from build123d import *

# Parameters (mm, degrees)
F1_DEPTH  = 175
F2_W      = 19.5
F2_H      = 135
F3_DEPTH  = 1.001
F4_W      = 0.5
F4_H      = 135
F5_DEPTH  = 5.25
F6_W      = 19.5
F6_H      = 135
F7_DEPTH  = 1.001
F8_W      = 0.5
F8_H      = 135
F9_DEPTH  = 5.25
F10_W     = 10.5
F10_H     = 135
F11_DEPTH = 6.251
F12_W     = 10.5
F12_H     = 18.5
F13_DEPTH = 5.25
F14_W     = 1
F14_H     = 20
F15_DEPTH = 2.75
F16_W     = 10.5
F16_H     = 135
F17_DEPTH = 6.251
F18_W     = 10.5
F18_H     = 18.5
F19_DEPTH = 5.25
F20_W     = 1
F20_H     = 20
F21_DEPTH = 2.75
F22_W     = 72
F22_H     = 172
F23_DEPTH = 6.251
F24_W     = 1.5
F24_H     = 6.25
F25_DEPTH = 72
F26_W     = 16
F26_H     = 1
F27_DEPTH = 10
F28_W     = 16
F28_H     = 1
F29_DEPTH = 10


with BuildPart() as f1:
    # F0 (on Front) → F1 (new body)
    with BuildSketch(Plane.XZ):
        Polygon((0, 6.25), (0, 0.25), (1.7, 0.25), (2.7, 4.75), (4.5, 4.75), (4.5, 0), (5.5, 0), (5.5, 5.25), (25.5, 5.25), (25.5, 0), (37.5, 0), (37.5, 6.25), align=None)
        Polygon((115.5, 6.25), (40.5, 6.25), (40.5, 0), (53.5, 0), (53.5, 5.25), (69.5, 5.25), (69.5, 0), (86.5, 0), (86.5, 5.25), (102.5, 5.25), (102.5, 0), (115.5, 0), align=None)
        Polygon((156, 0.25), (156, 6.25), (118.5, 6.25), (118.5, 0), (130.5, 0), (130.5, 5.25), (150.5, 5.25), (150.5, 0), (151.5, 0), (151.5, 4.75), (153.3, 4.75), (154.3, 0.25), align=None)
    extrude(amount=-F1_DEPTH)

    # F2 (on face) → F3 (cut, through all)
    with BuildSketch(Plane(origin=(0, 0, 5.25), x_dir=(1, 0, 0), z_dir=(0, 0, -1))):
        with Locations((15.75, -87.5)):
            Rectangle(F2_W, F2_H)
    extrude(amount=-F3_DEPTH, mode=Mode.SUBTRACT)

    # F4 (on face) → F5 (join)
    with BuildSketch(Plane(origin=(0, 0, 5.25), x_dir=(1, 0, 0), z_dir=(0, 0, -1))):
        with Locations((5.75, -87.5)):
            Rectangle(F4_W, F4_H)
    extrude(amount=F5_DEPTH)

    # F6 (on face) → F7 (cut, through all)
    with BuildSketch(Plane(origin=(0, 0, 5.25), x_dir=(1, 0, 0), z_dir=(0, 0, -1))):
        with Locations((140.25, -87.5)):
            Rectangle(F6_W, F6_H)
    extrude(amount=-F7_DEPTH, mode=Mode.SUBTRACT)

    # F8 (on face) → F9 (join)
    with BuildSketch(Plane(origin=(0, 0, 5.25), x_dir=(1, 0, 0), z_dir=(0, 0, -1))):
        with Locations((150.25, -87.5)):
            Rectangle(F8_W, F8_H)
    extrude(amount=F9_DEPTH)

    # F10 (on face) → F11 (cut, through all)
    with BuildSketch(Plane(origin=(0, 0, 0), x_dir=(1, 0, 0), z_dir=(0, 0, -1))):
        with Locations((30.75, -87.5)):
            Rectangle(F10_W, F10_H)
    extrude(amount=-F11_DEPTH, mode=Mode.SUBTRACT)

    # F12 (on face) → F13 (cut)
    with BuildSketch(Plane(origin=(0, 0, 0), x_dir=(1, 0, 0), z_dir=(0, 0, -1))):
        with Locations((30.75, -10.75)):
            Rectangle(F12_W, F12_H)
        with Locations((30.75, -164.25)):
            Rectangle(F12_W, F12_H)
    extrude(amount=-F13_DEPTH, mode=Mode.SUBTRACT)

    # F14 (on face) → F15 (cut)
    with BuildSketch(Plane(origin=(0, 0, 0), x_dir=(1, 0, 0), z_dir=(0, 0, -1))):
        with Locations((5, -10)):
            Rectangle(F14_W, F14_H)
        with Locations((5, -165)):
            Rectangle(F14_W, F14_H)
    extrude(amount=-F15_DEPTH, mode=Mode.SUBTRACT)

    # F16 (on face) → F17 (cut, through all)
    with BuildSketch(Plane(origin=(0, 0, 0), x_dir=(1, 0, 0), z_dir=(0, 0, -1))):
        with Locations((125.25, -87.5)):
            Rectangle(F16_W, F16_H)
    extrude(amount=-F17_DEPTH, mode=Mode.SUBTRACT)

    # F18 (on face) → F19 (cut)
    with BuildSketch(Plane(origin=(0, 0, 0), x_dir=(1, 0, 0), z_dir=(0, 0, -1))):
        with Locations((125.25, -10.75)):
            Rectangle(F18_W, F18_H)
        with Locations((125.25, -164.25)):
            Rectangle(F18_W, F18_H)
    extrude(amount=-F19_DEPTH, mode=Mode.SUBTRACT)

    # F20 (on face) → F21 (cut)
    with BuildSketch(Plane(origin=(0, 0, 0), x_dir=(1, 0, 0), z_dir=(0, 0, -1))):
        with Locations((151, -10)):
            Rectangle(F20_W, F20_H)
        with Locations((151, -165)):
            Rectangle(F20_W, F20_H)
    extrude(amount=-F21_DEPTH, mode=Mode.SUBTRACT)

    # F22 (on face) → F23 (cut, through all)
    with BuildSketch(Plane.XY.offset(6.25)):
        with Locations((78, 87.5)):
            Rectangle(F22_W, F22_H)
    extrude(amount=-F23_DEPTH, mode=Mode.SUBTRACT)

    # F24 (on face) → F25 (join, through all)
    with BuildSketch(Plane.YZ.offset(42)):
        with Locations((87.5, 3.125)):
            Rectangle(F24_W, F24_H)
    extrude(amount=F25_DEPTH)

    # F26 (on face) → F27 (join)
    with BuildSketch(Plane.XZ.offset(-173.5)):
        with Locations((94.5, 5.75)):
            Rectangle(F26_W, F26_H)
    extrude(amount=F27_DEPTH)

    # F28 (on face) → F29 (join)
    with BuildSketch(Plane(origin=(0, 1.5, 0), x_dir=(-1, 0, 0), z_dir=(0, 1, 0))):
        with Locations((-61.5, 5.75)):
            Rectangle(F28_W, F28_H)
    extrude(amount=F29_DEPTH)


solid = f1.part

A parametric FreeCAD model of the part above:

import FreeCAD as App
import Part
import Sketcher

V = App.Vector
Q = App.Units.Quantity

doc = App.newDocument("Part")
body = doc.addObject("PartDesign::Body", "Body")
body.AllowCompound = True

sketch1 = doc.addObject("Sketcher::SketchObject", "Sketch")
body.addObject(sketch1)
sketch1.AttachmentSupport = (doc.XZ_Plane, [""])
sketch1.MapMode = "FlatFace"
sketch1.addGeometry(Part.LineSegment(V(0, 6.25, 0), V(0, 0.25, 0)), False)
sketch1.addGeometry(Part.LineSegment(V(0, 0.25, 0), V(1.7, 0.25, 0)), False)
sketch1.addGeometry(Part.LineSegment(V(1.7, 0.25, 0), V(2.7, 4.75, 0)), False)
sketch1.addGeometry(Part.LineSegment(V(2.7, 4.75, 0), V(4.5, 4.75, 0)), False)
sketch1.addGeometry(Part.LineSegment(V(4.5, 4.75, 0), V(4.5, 0, 0)), False)
sketch1.addGeometry(Part.LineSegment(V(4.5, 0, 0), V(5.5, 0, 0)), False)
sketch1.addGeometry(Part.LineSegment(V(5.5, 0, 0), V(5.5, 5.25, 0)), False)
sketch1.addGeometry(Part.LineSegment(V(5.5, 5.25, 0), V(25.5, 5.25, 0)), False)
sketch1.addGeometry(Part.LineSegment(V(25.5, 5.25, 0), V(25.5, 0, 0)), False)
sketch1.addGeometry(Part.LineSegment(V(25.5, 0, 0), V(37.5, 0, 0)), False)
sketch1.addGeometry(Part.LineSegment(V(37.5, 0, 0), V(37.5, 6.25, 0)), False)
sketch1.addGeometry(Part.LineSegment(V(37.5, 6.25, 0), V(0, 6.25, 0)), False)
sketch1.addGeometry(Part.LineSegment(V(115.5, 6.25, 0), V(40.5, 6.25, 0)), False)
sketch1.addGeometry(Part.LineSegment(V(40.5, 6.25, 0), V(40.5, 0, 0)), False)
sketch1.addGeometry(Part.LineSegment(V(40.5, 0, 0), V(53.5, 0, 0)), False)
sketch1.addGeometry(Part.LineSegment(V(53.5, 0, 0), V(53.5, 5.25, 0)), False)
sketch1.addGeometry(Part.LineSegment(V(53.5, 5.25, 0), V(69.5, 5.25, 0)), False)
sketch1.addGeometry(Part.LineSegment(V(69.5, 5.25, 0), V(69.5, 0, 0)), False)
sketch1.addGeometry(Part.LineSegment(V(69.5, 0, 0), V(86.5, 0, 0)), False)
sketch1.addGeometry(Part.LineSegment(V(86.5, 0, 0), V(86.5, 5.25, 0)), False)
sketch1.addGeometry(Part.LineSegment(V(86.5, 5.25, 0), V(102.5, 5.25, 0)), False)
sketch1.addGeometry(Part.LineSegment(V(102.5, 5.25, 0), V(102.5, 0, 0)), False)
sketch1.addGeometry(Part.LineSegment(V(102.5, 0, 0), V(115.5, 0, 0)), False)
sketch1.addGeometry(Part.LineSegment(V(115.5, 0, 0), V(115.5, 6.25, 0)), False)
sketch1.addGeometry(Part.LineSegment(V(156, 0.25, 0), V(156, 6.25, 0)), False)
sketch1.addGeometry(Part.LineSegment(V(156, 6.25, 0), V(118.5, 6.25, 0)), False)
sketch1.addGeometry(Part.LineSegment(V(118.5, 6.25, 0), V(118.5, 0, 0)), False)
sketch1.addGeometry(Part.LineSegment(V(118.5, 0, 0), V(130.5, 0, 0)), False)
sketch1.addGeometry(Part.LineSegment(V(130.5, 0, 0), V(130.5, 5.25, 0)), False)
sketch1.addGeometry(Part.LineSegment(V(130.5, 5.25, 0), V(150.5, 5.25, 0)), False)
sketch1.addGeometry(Part.LineSegment(V(150.5, 5.25, 0), V(150.5, 0, 0)), False)
sketch1.addGeometry(Part.LineSegment(V(150.5, 0, 0), V(151.5, 0, 0)), False)
sketch1.addGeometry(Part.LineSegment(V(151.5, 0, 0), V(151.5, 4.75, 0)), False)
sketch1.addGeometry(Part.LineSegment(V(151.5, 4.75, 0), V(153.3, 4.75, 0)), False)
sketch1.addGeometry(Part.LineSegment(V(153.3, 4.75, 0), V(154.3, 0.25, 0)), False)
sketch1.addGeometry(Part.LineSegment(V(154.3, 0.25, 0), V(156, 0.25, 0)), False)
sketch1.addConstraint(Sketcher.Constraint("Coincident", 0, 2, 1, 1))
sketch1.addConstraint(Sketcher.Constraint("Coincident", 1, 2, 2, 1))
sketch1.addConstraint(Sketcher.Constraint("Coincident", 2, 2, 3, 1))
sketch1.addConstraint(Sketcher.Constraint("Coincident", 3, 2, 4, 1))
sketch1.addConstraint(Sketcher.Constraint("Coincident", 4, 2, 5, 1))
sketch1.addConstraint(Sketcher.Constraint("Coincident", 5, 2, 6, 1))
sketch1.addConstraint(Sketcher.Constraint("Coincident", 6, 2, 7, 1))
sketch1.addConstraint(Sketcher.Constraint("Coincident", 7, 2, 8, 1))
sketch1.addConstraint(Sketcher.Constraint("Coincident", 8, 2, 9, 1))
sketch1.addConstraint(Sketcher.Constraint("Coincident", 9, 2, 10, 1))
sketch1.addConstraint(Sketcher.Constraint("Coincident", 10, 2, 11, 1))
sketch1.addConstraint(Sketcher.Constraint("Coincident", 11, 2, 0, 1))
sketch1.addConstraint(Sketcher.Constraint("Coincident", 12, 2, 13, 1))
sketch1.addConstraint(Sketcher.Constraint("Coincident", 13, 2, 14, 1))
sketch1.addConstraint(Sketcher.Constraint("Coincident", 14, 2, 15, 1))
sketch1.addConstraint(Sketcher.Constraint("Coincident", 15, 2, 16, 1))
sketch1.addConstraint(Sketcher.Constraint("Coincident", 16, 2, 17, 1))
sketch1.addConstraint(Sketcher.Constraint("Coincident", 17, 2, 18, 1))
sketch1.addConstraint(Sketcher.Constraint("Coincident", 18, 2, 19, 1))
sketch1.addConstraint(Sketcher.Constraint("Coincident", 19, 2, 20, 1))
sketch1.addConstraint(Sketcher.Constraint("Coincident", 20, 2, 21, 1))
sketch1.addConstraint(Sketcher.Constraint("Coincident", 21, 2, 22, 1))
sketch1.addConstraint(Sketcher.Constraint("Coincident", 22, 2, 23, 1))
sketch1.addConstraint(Sketcher.Constraint("Coincident", 23, 2, 12, 1))
sketch1.addConstraint(Sketcher.Constraint("Coincident", 24, 2, 25, 1))
sketch1.addConstraint(Sketcher.Constraint("Coincident", 25, 2, 26, 1))
sketch1.addConstraint(Sketcher.Constraint("Coincident", 26, 2, 27, 1))
sketch1.addConstraint(Sketcher.Constraint("Coincident", 27, 2, 28, 1))
sketch1.addConstraint(Sketcher.Constraint("Coincident", 28, 2, 29, 1))
sketch1.addConstraint(Sketcher.Constraint("Coincident", 29, 2, 30, 1))
sketch1.addConstraint(Sketcher.Constraint("Coincident", 30, 2, 31, 1))
sketch1.addConstraint(Sketcher.Constraint("Coincident", 31, 2, 32, 1))
sketch1.addConstraint(Sketcher.Constraint("Coincident", 32, 2, 33, 1))
sketch1.addConstraint(Sketcher.Constraint("Coincident", 33, 2, 34, 1))
sketch1.addConstraint(Sketcher.Constraint("Coincident", 34, 2, 35, 1))
sketch1.addConstraint(Sketcher.Constraint("Coincident", 35, 2, 24, 1))
sketch1.addConstraint(Sketcher.Constraint("Vertical", 0))
sketch1.addConstraint(Sketcher.Constraint("Horizontal", 1))
sketch1.addConstraint(Sketcher.Constraint("Horizontal", 3))
sketch1.addConstraint(Sketcher.Constraint("Vertical", 4))
sketch1.addConstraint(Sketcher.Constraint("Horizontal", 5))
sketch1.addConstraint(Sketcher.Constraint("Vertical", 6))
sketch1.addConstraint(Sketcher.Constraint("Horizontal", 7))
sketch1.addConstraint(Sketcher.Constraint("Vertical", 8))
sketch1.addConstraint(Sketcher.Constraint("Horizontal", 9))
sketch1.addConstraint(Sketcher.Constraint("Vertical", 10))
sketch1.addConstraint(Sketcher.Constraint("Horizontal", 11))
sketch1.addConstraint(Sketcher.Constraint("Horizontal", 12))
sketch1.addConstraint(Sketcher.Constraint("Vertical", 13))
sketch1.addConstraint(Sketcher.Constraint("Horizontal", 14))
sketch1.addConstraint(Sketcher.Constraint("Vertical", 15))
sketch1.addConstraint(Sketcher.Constraint("Horizontal", 16))
sketch1.addConstraint(Sketcher.Constraint("Vertical", 17))
sketch1.addConstraint(Sketcher.Constraint("Horizontal", 18))
sketch1.addConstraint(Sketcher.Constraint("Vertical", 19))
sketch1.addConstraint(Sketcher.Constraint("Horizontal", 20))
sketch1.addConstraint(Sketcher.Constraint("Vertical", 21))
sketch1.addConstraint(Sketcher.Constraint("Horizontal", 22))
sketch1.addConstraint(Sketcher.Constraint("Vertical", 23))
sketch1.addConstraint(Sketcher.Constraint("Vertical", 24))
sketch1.addConstraint(Sketcher.Constraint("Horizontal", 25))
sketch1.addConstraint(Sketcher.Constraint("Vertical", 26))
sketch1.addConstraint(Sketcher.Constraint("Horizontal", 27))
sketch1.addConstraint(Sketcher.Constraint("Vertical", 28))
sketch1.addConstraint(Sketcher.Constraint("Horizontal", 29))
sketch1.addConstraint(Sketcher.Constraint("Vertical", 30))
sketch1.addConstraint(Sketcher.Constraint("Horizontal", 31))
sketch1.addConstraint(Sketcher.Constraint("Vertical", 32))
sketch1.addConstraint(Sketcher.Constraint("Horizontal", 33))
sketch1.addConstraint(Sketcher.Constraint("Horizontal", 35))
sketch1.addConstraint(Sketcher.Constraint("PointOnObject", 0, 2, -2))
sketch1.addConstraint(Sketcher.Constraint("PointOnObject", 4, 2, -1))
sketch1.addConstraint(Sketcher.Constraint("PointOnObject", 8, 2, -1))
sketch1.addConstraint(Sketcher.Constraint("PointOnObject", 13, 2, -1))
sketch1.addConstraint(Sketcher.Constraint("PointOnObject", 17, 2, -1))
sketch1.addConstraint(Sketcher.Constraint("PointOnObject", 21, 2, -1))
sketch1.addConstraint(Sketcher.Constraint("PointOnObject", 26, 2, -1))
sketch1.addConstraint(Sketcher.Constraint("PointOnObject", 30, 2, -1))
sketch1.addConstraint(Sketcher.Constraint("Horizontal", 11, 2, 12, 2))
sketch1.addConstraint(Sketcher.Constraint("Horizontal", 7, 2, 15, 2))
sketch1.addConstraint(Sketcher.Constraint("Horizontal", 16, 2, 19, 2))
sketch1.addConstraint(Sketcher.Constraint("Horizontal", 23, 2, 24, 2))
sketch1.addConstraint(Sketcher.Constraint("Horizontal", 20, 2, 28, 2))
sketch1.addConstraint(Sketcher.Constraint("Horizontal", 3, 2, 32, 2))
sketch1.addConstraint(Sketcher.Constraint("Horizontal", 1, 2, 34, 2))
sketch1.addConstraint(Sketcher.Constraint("Equal", 16, 20))
sketch1.addConstraint(Sketcher.Constraint("Equal", 14, 22))
sketch1.addConstraint(Sketcher.Constraint("Equal", 11, 25))
sketch1.addConstraint(Sketcher.Constraint("Equal", 9, 27))
sketch1.addConstraint(Sketcher.Constraint("Equal", 7, 29))
sketch1.addConstraint(Sketcher.Constraint("Equal", 5, 31))
sketch1.addConstraint(Sketcher.Constraint("Equal", 3, 33))
sketch1.addConstraint(Sketcher.Constraint("Equal", 1, 35))
sketch1.addConstraint(Sketcher.Constraint("DistanceX", 5, 1, 5, 2, Q("1 mm")))
sketch1.addConstraint(Sketcher.Constraint("DistanceX", 7, 1, 7, 2, Q("20 mm")))
sketch1.addConstraint(Sketcher.Constraint("DistanceX", 9, 1, 9, 2, Q("12 mm")))
sketch1.addConstraint(Sketcher.Constraint("DistanceX", 12, 2, 12, 1, Q("75 mm")))
sketch1.addConstraint(Sketcher.Constraint("DistanceX", 14, 1, 14, 2, Q("13 mm")))
sketch1.addConstraint(Sketcher.Constraint("DistanceX", 16, 1, 16, 2, Q("16 mm")))
sketch1.addConstraint(Sketcher.Constraint("DistanceY", 0, 2, 0, 1, Q("6 mm")))
sketch1.addConstraint(Sketcher.Constraint("DistanceX", 1, 1, 1, 2, Q("1.7 mm")))
sketch1.addConstraint(Sketcher.Constraint("DistanceX", 3, 1, 3, 2, Q("1.8 mm")))
sketch1.addConstraint(Sketcher.Constraint("DistanceX", 11, 2, 11, 1, Q("37.5 mm")))
sketch1.addConstraint(Sketcher.Constraint("DistanceX", -1, 1, 24, 2, Q("156 mm")))
sketch1.addConstraint(Sketcher.Constraint("DistanceY", 1, 2, 6, 2, Q("5 mm")))
sketch1.addConstraint(Sketcher.Constraint("DistanceX", 10, 2, 12, 2, Q("3 mm")))
sketch1.addConstraint(Sketcher.Constraint("DistanceY", 4, 2, 4, 1, Q("4.75 mm")))
sketch1.addConstraint(Sketcher.Constraint("DistanceY", 6, 1, 6, 2, Q("5.25 mm")))
pad1 = doc.addObject("PartDesign::Pad", "Pad")
body.addObject(pad1)
pad1.Profile = sketch1
pad1.Length = 175
pad1.Reversed = True

sketch2 = doc.addObject("Sketcher::SketchObject", "Sketch001")
body.addObject(sketch2)
sketch2.AttachmentSupport = (doc.XY_Plane, [""])
sketch2.MapMode = "FlatFace"
sketch2.AttachmentOffset = App.Placement(V(0, 0, 5.25), App.Rotation())
sketch2.addGeometry(Part.LineSegment(V(6, 20, 0), V(6, 155, 0)), False)
sketch2.addGeometry(Part.LineSegment(V(6, 155, 0), V(25.5, 155, 0)), False)
sketch2.addGeometry(Part.LineSegment(V(25.5, 155, 0), V(25.5, 20, 0)), False)
sketch2.addGeometry(Part.LineSegment(V(25.5, 20, 0), V(6, 20, 0)), False)
sketch2.addConstraint(Sketcher.Constraint("Coincident", 0, 2, 1, 1))
sketch2.addConstraint(Sketcher.Constraint("Coincident", 1, 2, 2, 1))
sketch2.addConstraint(Sketcher.Constraint("Coincident", 2, 2, 3, 1))
sketch2.addConstraint(Sketcher.Constraint("Coincident", 3, 2, 0, 1))
sketch2.addConstraint(Sketcher.Constraint("Vertical", 0))
sketch2.addConstraint(Sketcher.Constraint("Horizontal", 1))
sketch2.addConstraint(Sketcher.Constraint("Vertical", 2))
sketch2.addConstraint(Sketcher.Constraint("Horizontal", 3))
sketch2.addConstraint(Sketcher.Constraint("DistanceY", 0, 1, 0, 2, Q("135 mm")))
sketch2.addConstraint(Sketcher.Constraint("DistanceX", 1, 1, 1, 2, Q("19.5 mm")))
sketch2.addConstraint(Sketcher.Constraint("DistanceX", -1, 1, 0, 2, Q("6 mm")))
sketch2.addConstraint(Sketcher.Constraint("DistanceY", -1, 1, 0, 2, Q("155 mm")))
pocket1 = doc.addObject("PartDesign::Pocket", "Pocket")
body.addObject(pocket1)
pocket1.Profile = sketch2
pocket1.Type = "ThroughAll"
pocket1.Reversed = True

sketch3 = doc.addObject("Sketcher::SketchObject", "Sketch002")
body.addObject(sketch3)
sketch3.AttachmentSupport = (doc.XY_Plane, [""])
sketch3.MapMode = "FlatFace"
sketch3.AttachmentOffset = App.Placement(V(0, 0, 5.25), App.Rotation())
sketch3.addGeometry(Part.LineSegment(V(5.5, 20, 0), V(5.5, 155, 0)), False)
sketch3.addGeometry(Part.LineSegment(V(5.5, 155, 0), V(6, 155, 0)), False)
sketch3.addGeometry(Part.LineSegment(V(6, 155, 0), V(6, 20, 0)), False)
sketch3.addGeometry(Part.LineSegment(V(6, 20, 0), V(5.5, 20, 0)), False)
sketch3.addConstraint(Sketcher.Constraint("Coincident", 0, 2, 1, 1))
sketch3.addConstraint(Sketcher.Constraint("Coincident", 1, 2, 2, 1))
sketch3.addConstraint(Sketcher.Constraint("Coincident", 2, 2, 3, 1))
sketch3.addConstraint(Sketcher.Constraint("Coincident", 3, 2, 0, 1))
sketch3.addConstraint(Sketcher.Constraint("Vertical", 0))
sketch3.addConstraint(Sketcher.Constraint("Horizontal", 1))
sketch3.addConstraint(Sketcher.Constraint("Vertical", 2))
sketch3.addConstraint(Sketcher.Constraint("Horizontal", 3))
sketch3.addConstraint(Sketcher.Constraint("DistanceY", 0, 1, 0, 2, Q("135 mm")))
sketch3.addConstraint(Sketcher.Constraint("DistanceX", 1, 1, 1, 2, Q("0.5 mm")))
sketch3.addConstraint(Sketcher.Constraint("DistanceY", -1, 1, 0, 2, Q("155 mm")))
sketch3.addConstraint(Sketcher.Constraint("DistanceX", -1, 1, 1, 2, Q("6 mm")))
pad2 = doc.addObject("PartDesign::Pad", "Pad001")
body.addObject(pad2)
pad2.Profile = sketch3
pad2.Length = 5.25
pad2.Reversed = True

sketch4 = doc.addObject("Sketcher::SketchObject", "Sketch003")
body.addObject(sketch4)
sketch4.AttachmentSupport = (doc.XY_Plane, [""])
sketch4.MapMode = "FlatFace"
sketch4.AttachmentOffset = App.Placement(V(0, 0, 5.25), App.Rotation())
sketch4.addGeometry(Part.LineSegment(V(130.5, 20, 0), V(130.5, 155, 0)), False)
sketch4.addGeometry(Part.LineSegment(V(130.5, 155, 0), V(150, 155, 0)), False)
sketch4.addGeometry(Part.LineSegment(V(150, 155, 0), V(150, 20, 0)), False)
sketch4.addGeometry(Part.LineSegment(V(150, 20, 0), V(130.5, 20, 0)), False)
sketch4.addConstraint(Sketcher.Constraint("Coincident", 0, 2, 1, 1))
sketch4.addConstraint(Sketcher.Constraint("Coincident", 1, 2, 2, 1))
sketch4.addConstraint(Sketcher.Constraint("Coincident", 2, 2, 3, 1))
sketch4.addConstraint(Sketcher.Constraint("Coincident", 3, 2, 0, 1))
sketch4.addConstraint(Sketcher.Constraint("Vertical", 0))
sketch4.addConstraint(Sketcher.Constraint("Horizontal", 1))
sketch4.addConstraint(Sketcher.Constraint("Vertical", 2))
sketch4.addConstraint(Sketcher.Constraint("Horizontal", 3))
sketch4.addConstraint(Sketcher.Constraint("DistanceY", 0, 1, 0, 2, Q("135 mm")))
sketch4.addConstraint(Sketcher.Constraint("DistanceX", 1, 1, 1, 2, Q("19.5 mm")))
sketch4.addConstraint(Sketcher.Constraint("DistanceY", -1, 1, 0, 2, Q("155 mm")))
sketch4.addConstraint(Sketcher.Constraint("DistanceX", -1, 1, 1, 2, Q("150 mm")))
pocket2 = doc.addObject("PartDesign::Pocket", "Pocket001")
body.addObject(pocket2)
pocket2.Profile = sketch4
pocket2.Type = "ThroughAll"
pocket2.Reversed = True

sketch5 = doc.addObject("Sketcher::SketchObject", "Sketch004")
body.addObject(sketch5)
sketch5.AttachmentSupport = (doc.XY_Plane, [""])
sketch5.MapMode = "FlatFace"
sketch5.AttachmentOffset = App.Placement(V(0, 0, 5.25), App.Rotation())
sketch5.addGeometry(Part.LineSegment(V(150, 20, 0), V(150, 155, 0)), False)
sketch5.addGeometry(Part.LineSegment(V(150, 155, 0), V(150.5, 155, 0)), False)
sketch5.addGeometry(Part.LineSegment(V(150.5, 155, 0), V(150.5, 20, 0)), False)
sketch5.addGeometry(Part.LineSegment(V(150.5, 20, 0), V(150, 20, 0)), False)
sketch5.addConstraint(Sketcher.Constraint("Coincident", 0, 2, 1, 1))
sketch5.addConstraint(Sketcher.Constraint("Coincident", 1, 2, 2, 1))
sketch5.addConstraint(Sketcher.Constraint("Coincident", 2, 2, 3, 1))
sketch5.addConstraint(Sketcher.Constraint("Coincident", 3, 2, 0, 1))
sketch5.addConstraint(Sketcher.Constraint("Vertical", 0))
sketch5.addConstraint(Sketcher.Constraint("Horizontal", 1))
sketch5.addConstraint(Sketcher.Constraint("Vertical", 2))
sketch5.addConstraint(Sketcher.Constraint("Horizontal", 3))
sketch5.addConstraint(Sketcher.Constraint("DistanceY", 0, 1, 0, 2, Q("135 mm")))
sketch5.addConstraint(Sketcher.Constraint("DistanceX", 1, 1, 1, 2, Q("0.5 mm")))
sketch5.addConstraint(Sketcher.Constraint("DistanceX", -1, 1, 0, 2, Q("150 mm")))
sketch5.addConstraint(Sketcher.Constraint("DistanceY", -1, 1, 0, 2, Q("155 mm")))
pad3 = doc.addObject("PartDesign::Pad", "Pad002")
body.addObject(pad3)
pad3.Profile = sketch5
pad3.Length = 5.25
pad3.Reversed = True

sketch6 = doc.addObject("Sketcher::SketchObject", "Sketch005")
body.addObject(sketch6)
sketch6.AttachmentSupport = (doc.XY_Plane, [""])
sketch6.MapMode = "FlatFace"
sketch6.addGeometry(Part.LineSegment(V(25.5, 20, 0), V(25.5, 155, 0)), False)
sketch6.addGeometry(Part.LineSegment(V(25.5, 155, 0), V(36, 155, 0)), False)
sketch6.addGeometry(Part.LineSegment(V(36, 155, 0), V(36, 20, 0)), False)
sketch6.addGeometry(Part.LineSegment(V(36, 20, 0), V(25.5, 20, 0)), False)
sketch6.addConstraint(Sketcher.Constraint("Coincident", 0, 2, 1, 1))
sketch6.addConstraint(Sketcher.Constraint("Coincident", 1, 2, 2, 1))
sketch6.addConstraint(Sketcher.Constraint("Coincident", 2, 2, 3, 1))
sketch6.addConstraint(Sketcher.Constraint("Coincident", 3, 2, 0, 1))
sketch6.addConstraint(Sketcher.Constraint("Vertical", 0))
sketch6.addConstraint(Sketcher.Constraint("Horizontal", 1))
sketch6.addConstraint(Sketcher.Constraint("Vertical", 2))
sketch6.addConstraint(Sketcher.Constraint("Horizontal", 3))
sketch6.addConstraint(Sketcher.Constraint("DistanceY", 0, 1, 0, 2, Q("135 mm")))
sketch6.addConstraint(Sketcher.Constraint("DistanceX", 1, 1, 1, 2, Q("10.5 mm")))
sketch6.addConstraint(Sketcher.Constraint("DistanceY", -1, 1, 0, 2, Q("155 mm")))
sketch6.addConstraint(Sketcher.Constraint("DistanceX", -1, 1, 1, 2, Q("36 mm")))
pocket3 = doc.addObject("PartDesign::Pocket", "Pocket002")
body.addObject(pocket3)
pocket3.Profile = sketch6
pocket3.Type = "ThroughAll"
pocket3.Reversed = True

sketch7 = doc.addObject("Sketcher::SketchObject", "Sketch006")
body.addObject(sketch7)
sketch7.AttachmentSupport = (doc.XY_Plane, [""])
sketch7.MapMode = "FlatFace"
sketch7.addGeometry(Part.LineSegment(V(25.5, 1.5, 0), V(25.5, 20, 0)), False)
sketch7.addGeometry(Part.LineSegment(V(25.5, 20, 0), V(36, 20, 0)), False)
sketch7.addGeometry(Part.LineSegment(V(36, 20, 0), V(36, 1.5, 0)), False)
sketch7.addGeometry(Part.LineSegment(V(36, 1.5, 0), V(25.5, 1.5, 0)), False)
sketch7.addGeometry(Part.LineSegment(V(25.5, 155, 0), V(25.5, 173.5, 0)), False)
sketch7.addGeometry(Part.LineSegment(V(25.5, 173.5, 0), V(36, 173.5, 0)), False)
sketch7.addGeometry(Part.LineSegment(V(36, 173.5, 0), V(36, 155, 0)), False)
sketch7.addGeometry(Part.LineSegment(V(36, 155, 0), V(25.5, 155, 0)), False)
sketch7.addConstraint(Sketcher.Constraint("Coincident", 0, 2, 1, 1))
sketch7.addConstraint(Sketcher.Constraint("Coincident", 1, 2, 2, 1))
sketch7.addConstraint(Sketcher.Constraint("Coincident", 2, 2, 3, 1))
sketch7.addConstraint(Sketcher.Constraint("Coincident", 3, 2, 0, 1))
sketch7.addConstraint(Sketcher.Constraint("Coincident", 4, 2, 5, 1))
sketch7.addConstraint(Sketcher.Constraint("Coincident", 5, 2, 6, 1))
sketch7.addConstraint(Sketcher.Constraint("Coincident", 6, 2, 7, 1))
sketch7.addConstraint(Sketcher.Constraint("Coincident", 7, 2, 4, 1))
sketch7.addConstraint(Sketcher.Constraint("Vertical", 0))
sketch7.addConstraint(Sketcher.Constraint("Horizontal", 1))
sketch7.addConstraint(Sketcher.Constraint("Vertical", 2))
sketch7.addConstraint(Sketcher.Constraint("Horizontal", 3))
sketch7.addConstraint(Sketcher.Constraint("Vertical", 4))
sketch7.addConstraint(Sketcher.Constraint("Horizontal", 5))
sketch7.addConstraint(Sketcher.Constraint("Vertical", 6))
sketch7.addConstraint(Sketcher.Constraint("Horizontal", 7))
sketch7.addConstraint(Sketcher.Constraint("Vertical", 3, 2, 4, 2))
sketch7.addConstraint(Sketcher.Constraint("Vertical", 2, 2, 5, 2))
sketch7.addConstraint(Sketcher.Constraint("Equal", 2, 4))
sketch7.addConstraint(Sketcher.Constraint("DistanceX", 1, 1, 1, 2, Q("10.5 mm")))
sketch7.addConstraint(Sketcher.Constraint("DistanceY", 0, 1, 0, 2, Q("18.5 mm")))
sketch7.addConstraint(Sketcher.Constraint("DistanceY", -1, 1, 0, 2, Q("20 mm")))
sketch7.addConstraint(Sketcher.Constraint("DistanceX", -1, 1, 1, 2, Q("36 mm")))
sketch7.addConstraint(Sketcher.Constraint("DistanceY", -1, 1, 6, 2, Q("155 mm")))
pocket4 = doc.addObject("PartDesign::Pocket", "Pocket003")
body.addObject(pocket4)
pocket4.Profile = sketch7
pocket4.Length = 5.25
pocket4.Reversed = True

sketch8 = doc.addObject("Sketcher::SketchObject", "Sketch007")
body.addObject(sketch8)
sketch8.AttachmentSupport = (doc.XY_Plane, [""])
sketch8.MapMode = "FlatFace"
sketch8.addGeometry(Part.LineSegment(V(4.5, 0, 0), V(4.5, 20, 0)), False)
sketch8.addGeometry(Part.LineSegment(V(4.5, 20, 0), V(5.5, 20, 0)), False)
sketch8.addGeometry(Part.LineSegment(V(5.5, 20, 0), V(5.5, 0, 0)), False)
sketch8.addGeometry(Part.LineSegment(V(5.5, 0, 0), V(4.5, 0, 0)), False)
sketch8.addGeometry(Part.LineSegment(V(4.5, 155, 0), V(4.5, 175, 0)), False)
sketch8.addGeometry(Part.LineSegment(V(4.5, 175, 0), V(5.5, 175, 0)), False)
sketch8.addGeometry(Part.LineSegment(V(5.5, 175, 0), V(5.5, 155, 0)), False)
sketch8.addGeometry(Part.LineSegment(V(5.5, 155, 0), V(4.5, 155, 0)), False)
sketch8.addConstraint(Sketcher.Constraint("Coincident", 0, 2, 1, 1))
sketch8.addConstraint(Sketcher.Constraint("Coincident", 1, 2, 2, 1))
sketch8.addConstraint(Sketcher.Constraint("Coincident", 2, 2, 3, 1))
sketch8.addConstraint(Sketcher.Constraint("Coincident", 3, 2, 0, 1))
sketch8.addConstraint(Sketcher.Constraint("Coincident", 4, 2, 5, 1))
sketch8.addConstraint(Sketcher.Constraint("Coincident", 5, 2, 6, 1))
sketch8.addConstraint(Sketcher.Constraint("Coincident", 6, 2, 7, 1))
sketch8.addConstraint(Sketcher.Constraint("Coincident", 7, 2, 4, 1))
sketch8.addConstraint(Sketcher.Constraint("Vertical", 0))
sketch8.addConstraint(Sketcher.Constraint("Horizontal", 1))
sketch8.addConstraint(Sketcher.Constraint("Vertical", 2))
sketch8.addConstraint(Sketcher.Constraint("Horizontal", 3))
sketch8.addConstraint(Sketcher.Constraint("Vertical", 4))
sketch8.addConstraint(Sketcher.Constraint("Horizontal", 5))
sketch8.addConstraint(Sketcher.Constraint("Vertical", 6))
sketch8.addConstraint(Sketcher.Constraint("Horizontal", 7))
sketch8.addConstraint(Sketcher.Constraint("PointOnObject", 2, 2, -1))
sketch8.addConstraint(Sketcher.Constraint("Vertical", 3, 2, 4, 2))
sketch8.addConstraint(Sketcher.Constraint("Vertical", 2, 2, 5, 2))
sketch8.addConstraint(Sketcher.Constraint("Equal", 2, 4))
sketch8.addConstraint(Sketcher.Constraint("DistanceX", 1, 1, 1, 2, Q("1 mm")))
sketch8.addConstraint(Sketcher.Constraint("DistanceY", 0, 1, 0, 2, Q("20 mm")))
sketch8.addConstraint(Sketcher.Constraint("DistanceY", -1, 1, 4, 2, Q("175 mm")))
sketch8.addConstraint(Sketcher.Constraint("DistanceX", -1, 1, 0, 2, Q("4.5 mm")))
pocket5 = doc.addObject("PartDesign::Pocket", "Pocket004")
body.addObject(pocket5)
pocket5.Profile = sketch8
pocket5.Length = 2.75
pocket5.Reversed = True

sketch9 = doc.addObject("Sketcher::SketchObject", "Sketch008")
body.addObject(sketch9)
sketch9.AttachmentSupport = (doc.XY_Plane, [""])
sketch9.MapMode = "FlatFace"
sketch9.addGeometry(Part.LineSegment(V(120, 20, 0), V(120, 155, 0)), False)
sketch9.addGeometry(Part.LineSegment(V(120, 155, 0), V(130.5, 155, 0)), False)
sketch9.addGeometry(Part.LineSegment(V(130.5, 155, 0), V(130.5, 20, 0)), False)
sketch9.addGeometry(Part.LineSegment(V(130.5, 20, 0), V(120, 20, 0)), False)
sketch9.addConstraint(Sketcher.Constraint("Coincident", 0, 2, 1, 1))
sketch9.addConstraint(Sketcher.Constraint("Coincident", 1, 2, 2, 1))
sketch9.addConstraint(Sketcher.Constraint("Coincident", 2, 2, 3, 1))
sketch9.addConstraint(Sketcher.Constraint("Coincident", 3, 2, 0, 1))
sketch9.addConstraint(Sketcher.Constraint("Vertical", 0))
sketch9.addConstraint(Sketcher.Constraint("Horizontal", 1))
sketch9.addConstraint(Sketcher.Constraint("Vertical", 2))
sketch9.addConstraint(Sketcher.Constraint("Horizontal", 3))
sketch9.addConstraint(Sketcher.Constraint("DistanceY", 0, 1, 0, 2, Q("135 mm")))
sketch9.addConstraint(Sketcher.Constraint("DistanceX", 1, 1, 1, 2, Q("10.5 mm")))
sketch9.addConstraint(Sketcher.Constraint("DistanceX", -1, 1, 0, 2, Q("120 mm")))
sketch9.addConstraint(Sketcher.Constraint("DistanceY", -1, 1, 0, 2, Q("155 mm")))
pocket6 = doc.addObject("PartDesign::Pocket", "Pocket005")
body.addObject(pocket6)
pocket6.Profile = sketch9
pocket6.Type = "ThroughAll"
pocket6.Reversed = True

sketch10 = doc.addObject("Sketcher::SketchObject", "Sketch009")
body.addObject(sketch10)
sketch10.AttachmentSupport = (doc.XY_Plane, [""])
sketch10.MapMode = "FlatFace"
sketch10.addGeometry(Part.LineSegment(V(120, 1.5, 0), V(120, 20, 0)), False)
sketch10.addGeometry(Part.LineSegment(V(120, 20, 0), V(130.5, 20, 0)), False)
sketch10.addGeometry(Part.LineSegment(V(130.5, 20, 0), V(130.5, 1.5, 0)), False)
sketch10.addGeometry(Part.LineSegment(V(130.5, 1.5, 0), V(120, 1.5, 0)), False)
sketch10.addGeometry(Part.LineSegment(V(120, 155, 0), V(120, 173.5, 0)), False)
sketch10.addGeometry(Part.LineSegment(V(120, 173.5, 0), V(130.5, 173.5, 0)), False)
sketch10.addGeometry(Part.LineSegment(V(130.5, 173.5, 0), V(130.5, 155, 0)), False)
sketch10.addGeometry(Part.LineSegment(V(130.5, 155, 0), V(120, 155, 0)), False)
sketch10.addConstraint(Sketcher.Constraint("Coincident", 0, 2, 1, 1))
sketch10.addConstraint(Sketcher.Constraint("Coincident", 1, 2, 2, 1))
sketch10.addConstraint(Sketcher.Constraint("Coincident", 2, 2, 3, 1))
sketch10.addConstraint(Sketcher.Constraint("Coincident", 3, 2, 0, 1))
sketch10.addConstraint(Sketcher.Constraint("Coincident", 4, 2, 5, 1))
sketch10.addConstraint(Sketcher.Constraint("Coincident", 5, 2, 6, 1))
sketch10.addConstraint(Sketcher.Constraint("Coincident", 6, 2, 7, 1))
sketch10.addConstraint(Sketcher.Constraint("Coincident", 7, 2, 4, 1))
sketch10.addConstraint(Sketcher.Constraint("Vertical", 0))
sketch10.addConstraint(Sketcher.Constraint("Horizontal", 1))
sketch10.addConstraint(Sketcher.Constraint("Vertical", 2))
sketch10.addConstraint(Sketcher.Constraint("Horizontal", 3))
sketch10.addConstraint(Sketcher.Constraint("Vertical", 4))
sketch10.addConstraint(Sketcher.Constraint("Horizontal", 5))
sketch10.addConstraint(Sketcher.Constraint("Vertical", 6))
sketch10.addConstraint(Sketcher.Constraint("Horizontal", 7))
sketch10.addConstraint(Sketcher.Constraint("Vertical", 3, 2, 4, 2))
sketch10.addConstraint(Sketcher.Constraint("Vertical", 2, 2, 5, 2))
sketch10.addConstraint(Sketcher.Constraint("Equal", 2, 4))
sketch10.addConstraint(Sketcher.Constraint("DistanceX", 1, 1, 1, 2, Q("10.5 mm")))
sketch10.addConstraint(Sketcher.Constraint("DistanceY", 0, 1, 0, 2, Q("18.5 mm")))
sketch10.addConstraint(Sketcher.Constraint("DistanceX", -1, 1, 0, 2, Q("120 mm")))
sketch10.addConstraint(Sketcher.Constraint("DistanceY", -1, 1, 0, 2, Q("20 mm")))
sketch10.addConstraint(Sketcher.Constraint("DistanceY", -1, 1, 6, 2, Q("155 mm")))
pocket7 = doc.addObject("PartDesign::Pocket", "Pocket006")
body.addObject(pocket7)
pocket7.Profile = sketch10
pocket7.Length = 5.25
pocket7.Reversed = True

sketch11 = doc.addObject("Sketcher::SketchObject", "Sketch010")
body.addObject(sketch11)
sketch11.AttachmentSupport = (doc.XY_Plane, [""])
sketch11.MapMode = "FlatFace"
sketch11.addGeometry(Part.LineSegment(V(150.5, 0, 0), V(150.5, 20, 0)), False)
sketch11.addGeometry(Part.LineSegment(V(150.5, 20, 0), V(151.5, 20, 0)), False)
sketch11.addGeometry(Part.LineSegment(V(151.5, 20, 0), V(151.5, 0, 0)), False)
sketch11.addGeometry(Part.LineSegment(V(151.5, 0, 0), V(150.5, 0, 0)), False)
sketch11.addGeometry(Part.LineSegment(V(150.5, 155, 0), V(150.5, 175, 0)), False)
sketch11.addGeometry(Part.LineSegment(V(150.5, 175, 0), V(151.5, 175, 0)), False)
sketch11.addGeometry(Part.LineSegment(V(151.5, 175, 0), V(151.5, 155, 0)), False)
sketch11.addGeometry(Part.LineSegment(V(151.5, 155, 0), V(150.5, 155, 0)), False)
sketch11.addConstraint(Sketcher.Constraint("Coincident", 0, 2, 1, 1))
sketch11.addConstraint(Sketcher.Constraint("Coincident", 1, 2, 2, 1))
sketch11.addConstraint(Sketcher.Constraint("Coincident", 2, 2, 3, 1))
sketch11.addConstraint(Sketcher.Constraint("Coincident", 3, 2, 0, 1))
sketch11.addConstraint(Sketcher.Constraint("Coincident", 4, 2, 5, 1))
sketch11.addConstraint(Sketcher.Constraint("Coincident", 5, 2, 6, 1))
sketch11.addConstraint(Sketcher.Constraint("Coincident", 6, 2, 7, 1))
sketch11.addConstraint(Sketcher.Constraint("Coincident", 7, 2, 4, 1))
sketch11.addConstraint(Sketcher.Constraint("Vertical", 0))
sketch11.addConstraint(Sketcher.Constraint("Horizontal", 1))
sketch11.addConstraint(Sketcher.Constraint("Vertical", 2))
sketch11.addConstraint(Sketcher.Constraint("Horizontal", 3))
sketch11.addConstraint(Sketcher.Constraint("Vertical", 4))
sketch11.addConstraint(Sketcher.Constraint("Horizontal", 5))
sketch11.addConstraint(Sketcher.Constraint("Vertical", 6))
sketch11.addConstraint(Sketcher.Constraint("Horizontal", 7))
sketch11.addConstraint(Sketcher.Constraint("PointOnObject", 2, 2, -1))
sketch11.addConstraint(Sketcher.Constraint("Vertical", 3, 2, 4, 2))
sketch11.addConstraint(Sketcher.Constraint("Vertical", 2, 2, 5, 2))
sketch11.addConstraint(Sketcher.Constraint("Equal", 2, 4))
sketch11.addConstraint(Sketcher.Constraint("DistanceX", 1, 1, 1, 2, Q("1 mm")))
sketch11.addConstraint(Sketcher.Constraint("DistanceY", 0, 1, 0, 2, Q("20 mm")))
sketch11.addConstraint(Sketcher.Constraint("DistanceY", -1, 1, 4, 2, Q("175 mm")))
sketch11.addConstraint(Sketcher.Constraint("DistanceX", -1, 1, 0, 2, Q("150.5 mm")))
pocket8 = doc.addObject("PartDesign::Pocket", "Pocket007")
body.addObject(pocket8)
pocket8.Profile = sketch11
pocket8.Length = 2.75
pocket8.Reversed = True

sketch12 = doc.addObject("Sketcher::SketchObject", "Sketch011")
body.addObject(sketch12)
sketch12.AttachmentSupport = (doc.XY_Plane, [""])
sketch12.MapMode = "FlatFace"
sketch12.AttachmentOffset = App.Placement(V(0, 0, 6.25), App.Rotation())
sketch12.addGeometry(Part.LineSegment(V(42, 173.5, 0), V(42, 1.5, 0)), False)
sketch12.addGeometry(Part.LineSegment(V(42, 1.5, 0), V(114, 1.5, 0)), False)
sketch12.addGeometry(Part.LineSegment(V(114, 1.5, 0), V(114, 173.5, 0)), False)
sketch12.addGeometry(Part.LineSegment(V(114, 173.5, 0), V(42, 173.5, 0)), False)
sketch12.addConstraint(Sketcher.Constraint("Coincident", 0, 2, 1, 1))
sketch12.addConstraint(Sketcher.Constraint("Coincident", 1, 2, 2, 1))
sketch12.addConstraint(Sketcher.Constraint("Coincident", 2, 2, 3, 1))
sketch12.addConstraint(Sketcher.Constraint("Coincident", 3, 2, 0, 1))
sketch12.addConstraint(Sketcher.Constraint("Vertical", 0))
sketch12.addConstraint(Sketcher.Constraint("Horizontal", 1))
sketch12.addConstraint(Sketcher.Constraint("Vertical", 2))
sketch12.addConstraint(Sketcher.Constraint("Horizontal", 3))
sketch12.addConstraint(Sketcher.Constraint("DistanceX", 1, 1, 1, 2, Q("72 mm")))
sketch12.addConstraint(Sketcher.Constraint("DistanceY", 0, 2, 0, 1, Q("172 mm")))
sketch12.addConstraint(Sketcher.Constraint("DistanceX", -1, 1, 0, 2, Q("42 mm")))
sketch12.addConstraint(Sketcher.Constraint("DistanceY", -1, 1, 0, 2, Q("1.5 mm")))
pocket9 = doc.addObject("PartDesign::Pocket", "Pocket008")
body.addObject(pocket9)
pocket9.Profile = sketch12
pocket9.Type = "ThroughAll"

sketch13 = doc.addObject("Sketcher::SketchObject", "Sketch012")
body.addObject(sketch13)
sketch13.AttachmentSupport = (doc.YZ_Plane, [""])
sketch13.MapMode = "FlatFace"
sketch13.AttachmentOffset = App.Placement(V(0, 0, 42), App.Rotation())
sketch13.addGeometry(Part.LineSegment(V(86.75, 6.25, 0), V(86.75, 0, 0)), False)
sketch13.addGeometry(Part.LineSegment(V(86.75, 0, 0), V(88.25, 0, 0)), False)
sketch13.addGeometry(Part.LineSegment(V(88.25, 0, 0), V(88.25, 6.25, 0)), False)
sketch13.addGeometry(Part.LineSegment(V(88.25, 6.25, 0), V(86.75, 6.25, 0)), False)
sketch13.addConstraint(Sketcher.Constraint("Coincident", 0, 2, 1, 1))
sketch13.addConstraint(Sketcher.Constraint("Coincident", 1, 2, 2, 1))
sketch13.addConstraint(Sketcher.Constraint("Coincident", 2, 2, 3, 1))
sketch13.addConstraint(Sketcher.Constraint("Coincident", 3, 2, 0, 1))
sketch13.addConstraint(Sketcher.Constraint("Vertical", 0))
sketch13.addConstraint(Sketcher.Constraint("Horizontal", 1))
sketch13.addConstraint(Sketcher.Constraint("Vertical", 2))
sketch13.addConstraint(Sketcher.Constraint("Horizontal", 3))
sketch13.addConstraint(Sketcher.Constraint("PointOnObject", 0, 2, -1))
sketch13.addConstraint(Sketcher.Constraint("DistanceX", 1, 1, 1, 2, Q("1.5 mm")))
sketch13.addConstraint(Sketcher.Constraint("DistanceY", 0, 2, 0, 1, Q("6.25 mm")))
sketch13.addConstraint(Sketcher.Constraint("DistanceX", -1, 1, 0, 2, Q("86.75 mm")))
pad4 = doc.addObject("PartDesign::Pad", "Pad003")
body.addObject(pad4)
pad4.Profile = sketch13
pad4.Length = 72

sketch14 = doc.addObject("Sketcher::SketchObject", "Sketch013")
body.addObject(sketch14)
sketch14.AttachmentSupport = (doc.XZ_Plane, [""])
sketch14.MapMode = "FlatFace"
sketch14.AttachmentOffset = App.Placement(V(0, 0, -173.5), App.Rotation())
sketch14.addGeometry(Part.LineSegment(V(86.5, 6.25, 0), V(86.5, 5.25, 0)), False)
sketch14.addGeometry(Part.LineSegment(V(86.5, 5.25, 0), V(102.5, 5.25, 0)), False)
sketch14.addGeometry(Part.LineSegment(V(102.5, 5.25, 0), V(102.5, 6.25, 0)), False)
sketch14.addGeometry(Part.LineSegment(V(102.5, 6.25, 0), V(86.5, 6.25, 0)), False)
sketch14.addConstraint(Sketcher.Constraint("Coincident", 0, 2, 1, 1))
sketch14.addConstraint(Sketcher.Constraint("Coincident", 1, 2, 2, 1))
sketch14.addConstraint(Sketcher.Constraint("Coincident", 2, 2, 3, 1))
sketch14.addConstraint(Sketcher.Constraint("Coincident", 3, 2, 0, 1))
sketch14.addConstraint(Sketcher.Constraint("Vertical", 0))
sketch14.addConstraint(Sketcher.Constraint("Horizontal", 1))
sketch14.addConstraint(Sketcher.Constraint("Vertical", 2))
sketch14.addConstraint(Sketcher.Constraint("Horizontal", 3))
sketch14.addConstraint(Sketcher.Constraint("DistanceX", 1, 1, 1, 2, Q("16 mm")))
sketch14.addConstraint(Sketcher.Constraint("DistanceY", 0, 2, 0, 1, Q("1 mm")))
sketch14.addConstraint(Sketcher.Constraint("DistanceX", -1, 1, 0, 2, Q("86.5 mm")))
sketch14.addConstraint(Sketcher.Constraint("DistanceY", -1, 1, 0, 2, Q("5.25 mm")))
pad5 = doc.addObject("PartDesign::Pad", "Pad004")
body.addObject(pad5)
pad5.Profile = sketch14
pad5.Length = 10

sketch15 = doc.addObject("Sketcher::SketchObject", "Sketch014")
body.addObject(sketch15)
sketch15.AttachmentSupport = (doc.XZ_Plane, [""])
sketch15.MapMode = "FlatFace"
sketch15.AttachmentOffset = App.Placement(V(0, 0, -1.5), App.Rotation())
sketch15.addGeometry(Part.LineSegment(V(69.5, 6.25, 0), V(69.5, 5.25, 0)), False)
sketch15.addGeometry(Part.LineSegment(V(69.5, 5.25, 0), V(53.5, 5.25, 0)), False)
sketch15.addGeometry(Part.LineSegment(V(53.5, 5.25, 0), V(53.5, 6.25, 0)), False)
sketch15.addGeometry(Part.LineSegment(V(53.5, 6.25, 0), V(69.5, 6.25, 0)), False)
sketch15.addConstraint(Sketcher.Constraint("Coincident", 0, 2, 1, 1))
sketch15.addConstraint(Sketcher.Constraint("Coincident", 1, 2, 2, 1))
sketch15.addConstraint(Sketcher.Constraint("Coincident", 2, 2, 3, 1))
sketch15.addConstraint(Sketcher.Constraint("Coincident", 3, 2, 0, 1))
sketch15.addConstraint(Sketcher.Constraint("Vertical", 0))
sketch15.addConstraint(Sketcher.Constraint("Horizontal", 1))
sketch15.addConstraint(Sketcher.Constraint("Vertical", 2))
sketch15.addConstraint(Sketcher.Constraint("Horizontal", 3))
sketch15.addConstraint(Sketcher.Constraint("DistanceX", 1, 2, 1, 1, Q("16 mm")))
sketch15.addConstraint(Sketcher.Constraint("DistanceY", 0, 2, 0, 1, Q("1 mm")))
sketch15.addConstraint(Sketcher.Constraint("DistanceX", -1, 1, 0, 2, Q("69.5 mm")))
sketch15.addConstraint(Sketcher.Constraint("DistanceY", -1, 1, 0, 2, Q("5.25 mm")))
pad6 = doc.addObject("PartDesign::Pad", "Pad005")
body.addObject(pad6)
pad6.Profile = sketch15
pad6.Length = 10
pad6.Reversed = True

doc.recompute()
